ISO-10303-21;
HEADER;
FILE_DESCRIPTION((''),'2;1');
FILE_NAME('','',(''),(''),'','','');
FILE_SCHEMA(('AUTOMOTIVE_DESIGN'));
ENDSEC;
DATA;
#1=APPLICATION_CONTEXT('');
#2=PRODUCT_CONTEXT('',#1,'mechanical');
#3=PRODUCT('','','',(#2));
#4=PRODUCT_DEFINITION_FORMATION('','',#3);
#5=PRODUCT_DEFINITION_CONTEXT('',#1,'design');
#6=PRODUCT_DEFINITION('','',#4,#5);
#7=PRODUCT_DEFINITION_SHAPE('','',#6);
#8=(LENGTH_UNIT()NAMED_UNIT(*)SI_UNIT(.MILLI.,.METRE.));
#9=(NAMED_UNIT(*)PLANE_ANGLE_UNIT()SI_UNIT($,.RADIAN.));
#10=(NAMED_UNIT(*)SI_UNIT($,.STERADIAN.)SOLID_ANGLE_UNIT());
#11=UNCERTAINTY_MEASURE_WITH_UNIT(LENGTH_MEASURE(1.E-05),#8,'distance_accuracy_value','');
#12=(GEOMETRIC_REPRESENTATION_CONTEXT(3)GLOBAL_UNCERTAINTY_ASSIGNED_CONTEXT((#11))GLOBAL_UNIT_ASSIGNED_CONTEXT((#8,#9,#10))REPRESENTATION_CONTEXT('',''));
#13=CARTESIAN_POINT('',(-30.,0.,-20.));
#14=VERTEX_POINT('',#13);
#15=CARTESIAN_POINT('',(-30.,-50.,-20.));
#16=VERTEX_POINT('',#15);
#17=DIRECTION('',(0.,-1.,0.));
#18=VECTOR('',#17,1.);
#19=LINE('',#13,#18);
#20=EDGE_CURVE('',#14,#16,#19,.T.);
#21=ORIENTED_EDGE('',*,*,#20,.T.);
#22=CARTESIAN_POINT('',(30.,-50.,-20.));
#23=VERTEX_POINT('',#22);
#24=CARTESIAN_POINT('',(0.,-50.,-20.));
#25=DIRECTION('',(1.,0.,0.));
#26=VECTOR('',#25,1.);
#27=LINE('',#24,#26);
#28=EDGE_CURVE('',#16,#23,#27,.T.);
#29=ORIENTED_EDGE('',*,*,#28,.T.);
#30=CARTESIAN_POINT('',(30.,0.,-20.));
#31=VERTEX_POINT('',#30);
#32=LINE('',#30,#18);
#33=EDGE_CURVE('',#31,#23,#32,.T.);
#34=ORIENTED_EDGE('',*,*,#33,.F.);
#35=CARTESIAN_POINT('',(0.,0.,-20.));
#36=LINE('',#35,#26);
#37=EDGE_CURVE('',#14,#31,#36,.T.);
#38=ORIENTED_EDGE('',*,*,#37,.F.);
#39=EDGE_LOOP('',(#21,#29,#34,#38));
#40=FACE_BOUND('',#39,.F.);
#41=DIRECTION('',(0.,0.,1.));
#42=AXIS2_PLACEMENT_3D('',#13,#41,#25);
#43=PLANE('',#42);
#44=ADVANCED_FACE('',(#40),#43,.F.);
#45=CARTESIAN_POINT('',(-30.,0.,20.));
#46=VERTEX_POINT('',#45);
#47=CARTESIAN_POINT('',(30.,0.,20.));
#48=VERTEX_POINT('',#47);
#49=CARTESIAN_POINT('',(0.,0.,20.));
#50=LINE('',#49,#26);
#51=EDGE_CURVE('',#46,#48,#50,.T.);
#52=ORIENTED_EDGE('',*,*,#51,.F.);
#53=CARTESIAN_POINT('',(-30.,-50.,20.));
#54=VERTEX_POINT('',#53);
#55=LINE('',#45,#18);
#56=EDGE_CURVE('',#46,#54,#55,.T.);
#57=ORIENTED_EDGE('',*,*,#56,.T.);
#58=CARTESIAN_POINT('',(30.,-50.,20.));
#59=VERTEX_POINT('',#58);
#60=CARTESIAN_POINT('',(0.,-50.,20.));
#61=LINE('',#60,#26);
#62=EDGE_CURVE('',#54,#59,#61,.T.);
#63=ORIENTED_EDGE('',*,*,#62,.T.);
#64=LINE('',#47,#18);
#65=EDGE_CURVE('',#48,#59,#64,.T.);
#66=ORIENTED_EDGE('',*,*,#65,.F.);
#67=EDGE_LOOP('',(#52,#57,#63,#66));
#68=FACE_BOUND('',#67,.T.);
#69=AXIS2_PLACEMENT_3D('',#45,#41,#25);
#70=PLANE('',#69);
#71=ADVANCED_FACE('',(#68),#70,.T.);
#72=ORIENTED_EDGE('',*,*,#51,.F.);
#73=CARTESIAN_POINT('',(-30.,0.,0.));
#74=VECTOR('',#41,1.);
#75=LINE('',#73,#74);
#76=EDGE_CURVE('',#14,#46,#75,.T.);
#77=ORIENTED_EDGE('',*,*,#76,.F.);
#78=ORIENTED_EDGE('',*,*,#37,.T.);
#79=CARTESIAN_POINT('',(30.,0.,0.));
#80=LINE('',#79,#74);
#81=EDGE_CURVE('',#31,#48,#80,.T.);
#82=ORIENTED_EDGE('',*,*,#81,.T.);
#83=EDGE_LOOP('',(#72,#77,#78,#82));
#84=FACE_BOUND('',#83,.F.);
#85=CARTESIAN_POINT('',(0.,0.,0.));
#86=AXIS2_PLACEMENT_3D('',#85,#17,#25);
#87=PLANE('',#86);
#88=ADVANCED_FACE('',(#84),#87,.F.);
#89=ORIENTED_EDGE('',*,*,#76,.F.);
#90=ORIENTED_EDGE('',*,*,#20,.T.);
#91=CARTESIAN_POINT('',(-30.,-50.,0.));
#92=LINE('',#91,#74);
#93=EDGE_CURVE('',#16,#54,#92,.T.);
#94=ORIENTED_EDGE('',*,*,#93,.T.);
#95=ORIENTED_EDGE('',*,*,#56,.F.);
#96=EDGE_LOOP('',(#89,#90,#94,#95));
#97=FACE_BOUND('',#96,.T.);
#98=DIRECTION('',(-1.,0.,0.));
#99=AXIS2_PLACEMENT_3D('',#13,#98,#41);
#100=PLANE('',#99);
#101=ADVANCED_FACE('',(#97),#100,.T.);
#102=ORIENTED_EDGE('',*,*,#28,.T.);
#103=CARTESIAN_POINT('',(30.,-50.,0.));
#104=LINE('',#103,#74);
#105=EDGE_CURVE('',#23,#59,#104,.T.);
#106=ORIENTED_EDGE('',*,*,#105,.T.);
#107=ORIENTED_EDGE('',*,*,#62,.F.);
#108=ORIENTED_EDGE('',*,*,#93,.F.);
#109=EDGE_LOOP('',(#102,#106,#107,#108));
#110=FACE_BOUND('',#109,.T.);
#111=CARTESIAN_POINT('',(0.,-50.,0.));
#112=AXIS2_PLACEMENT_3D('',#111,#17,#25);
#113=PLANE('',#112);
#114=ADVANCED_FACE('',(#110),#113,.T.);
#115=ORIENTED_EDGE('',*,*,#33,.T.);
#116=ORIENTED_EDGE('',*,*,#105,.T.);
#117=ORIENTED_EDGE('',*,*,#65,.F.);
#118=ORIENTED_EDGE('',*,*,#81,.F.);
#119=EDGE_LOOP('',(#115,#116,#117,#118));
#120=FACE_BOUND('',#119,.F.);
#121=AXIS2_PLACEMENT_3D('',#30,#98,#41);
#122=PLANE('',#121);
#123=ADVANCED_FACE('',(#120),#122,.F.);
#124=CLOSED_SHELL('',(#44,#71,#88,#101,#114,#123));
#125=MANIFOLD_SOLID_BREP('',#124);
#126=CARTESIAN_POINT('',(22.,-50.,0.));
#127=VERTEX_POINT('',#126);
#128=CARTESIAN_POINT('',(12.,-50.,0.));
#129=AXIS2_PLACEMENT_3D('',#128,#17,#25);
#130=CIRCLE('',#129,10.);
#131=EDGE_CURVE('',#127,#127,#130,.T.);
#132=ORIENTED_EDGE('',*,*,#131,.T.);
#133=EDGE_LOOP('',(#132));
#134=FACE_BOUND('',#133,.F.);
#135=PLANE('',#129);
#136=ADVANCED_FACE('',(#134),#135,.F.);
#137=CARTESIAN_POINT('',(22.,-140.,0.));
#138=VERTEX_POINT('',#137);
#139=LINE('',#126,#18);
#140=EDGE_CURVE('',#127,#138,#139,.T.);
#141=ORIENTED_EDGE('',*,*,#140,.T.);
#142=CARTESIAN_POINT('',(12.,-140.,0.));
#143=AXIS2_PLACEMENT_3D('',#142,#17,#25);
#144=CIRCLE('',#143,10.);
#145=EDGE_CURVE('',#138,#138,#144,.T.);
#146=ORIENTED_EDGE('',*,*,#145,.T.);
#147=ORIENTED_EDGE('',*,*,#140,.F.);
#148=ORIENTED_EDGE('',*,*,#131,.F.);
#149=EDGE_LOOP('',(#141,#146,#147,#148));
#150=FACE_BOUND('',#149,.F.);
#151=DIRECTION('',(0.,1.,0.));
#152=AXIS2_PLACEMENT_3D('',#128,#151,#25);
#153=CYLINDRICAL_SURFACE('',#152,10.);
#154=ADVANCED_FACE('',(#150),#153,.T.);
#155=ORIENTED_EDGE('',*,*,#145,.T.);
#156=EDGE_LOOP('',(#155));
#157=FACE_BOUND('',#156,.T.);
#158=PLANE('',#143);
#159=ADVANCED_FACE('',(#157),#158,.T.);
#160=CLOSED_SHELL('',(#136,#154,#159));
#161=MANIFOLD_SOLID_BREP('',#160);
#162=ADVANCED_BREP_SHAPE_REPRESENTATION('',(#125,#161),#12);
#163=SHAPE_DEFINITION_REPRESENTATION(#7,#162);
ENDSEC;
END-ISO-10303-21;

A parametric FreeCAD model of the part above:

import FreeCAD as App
import Part
import Sketcher
Q = App.Units.Quantity


def add_polygon(sketch, points):
    """Adds a closed chain of lines whose ends are joined by coincident constraints."""
    first, n = sketch.GeometryCount, len(points)
    for a, b in zip(points, points[1:] + points[:1]):
        sketch.addGeometry(Part.LineSegment(App.Vector(*a, 0), App.Vector(*b, 0)), False)
    for i in range(n):
        sketch.addConstraint(Sketcher.Constraint("Coincident", first + i, 2, first + (i + 1) % n, 1))

doc = App.newDocument("Part")
body = doc.addObject("PartDesign::Body", "Body")

# Sketch on XZ plane
sketch1 = body.newObject("Sketcher::SketchObject", "Sketch")
sketch1.AttachmentSupport = (doc.getObject("XZ_Plane"), [""])
sketch1.MapMode = "FlatFace"
add_polygon(sketch1, [(-30, 20), (-30, -20), (30, -20), (30, 20)])  # lines 0-3
sketch1.addConstraint([
    Sketcher.Constraint("Vertical", 0),
    Sketcher.Constraint("Horizontal", 1),
    Sketcher.Constraint("Vertical", 2),
    Sketcher.Constraint("Horizontal", 3),
    Sketcher.Constraint("Symmetric", 0, 2, 2, 2, -1, 1),
    Sketcher.Constraint("DistanceX", 1, 1, 1, 2, Q("60 mm")),
    Sketcher.Constraint("DistanceY", 0, 2, 0, 1, Q("40 mm")),
])
pad1 = body.newObject("PartDesign::Pad", "Pad")
pad1.Profile = sketch1
pad1.Length = 50
body2 = doc.addObject("PartDesign::Body", "Body001")

# Sketch on XZ plane
sketch2 = body2.newObject("Sketcher::SketchObject", "Sketch001")
sketch2.AttachmentSupport = (doc.getObject("XZ_Plane001"), [""])
sketch2.MapMode = "FlatFace"
sketch2.AttachmentOffset = App.Placement(App.Vector(0, 0, 50), App.Rotation())
sketch2.addGeometry(Part.Circle(App.Vector(12, 0, 0), App.Vector(0, 0, 1), 10), False)
sketch2.addConstraint([
    Sketcher.Constraint("PointOnObject", 0, 3, -1),
    Sketcher.Constraint("Diameter", 0, Q("20 mm")),
    Sketcher.Constraint("DistanceX", -1, 1, 0, 3, Q("12 mm")),
])
pad2 = body2.newObject("PartDesign::Pad", "Pad001")
pad2.Profile = sketch2
pad2.Length = 90

doc.recompute()
